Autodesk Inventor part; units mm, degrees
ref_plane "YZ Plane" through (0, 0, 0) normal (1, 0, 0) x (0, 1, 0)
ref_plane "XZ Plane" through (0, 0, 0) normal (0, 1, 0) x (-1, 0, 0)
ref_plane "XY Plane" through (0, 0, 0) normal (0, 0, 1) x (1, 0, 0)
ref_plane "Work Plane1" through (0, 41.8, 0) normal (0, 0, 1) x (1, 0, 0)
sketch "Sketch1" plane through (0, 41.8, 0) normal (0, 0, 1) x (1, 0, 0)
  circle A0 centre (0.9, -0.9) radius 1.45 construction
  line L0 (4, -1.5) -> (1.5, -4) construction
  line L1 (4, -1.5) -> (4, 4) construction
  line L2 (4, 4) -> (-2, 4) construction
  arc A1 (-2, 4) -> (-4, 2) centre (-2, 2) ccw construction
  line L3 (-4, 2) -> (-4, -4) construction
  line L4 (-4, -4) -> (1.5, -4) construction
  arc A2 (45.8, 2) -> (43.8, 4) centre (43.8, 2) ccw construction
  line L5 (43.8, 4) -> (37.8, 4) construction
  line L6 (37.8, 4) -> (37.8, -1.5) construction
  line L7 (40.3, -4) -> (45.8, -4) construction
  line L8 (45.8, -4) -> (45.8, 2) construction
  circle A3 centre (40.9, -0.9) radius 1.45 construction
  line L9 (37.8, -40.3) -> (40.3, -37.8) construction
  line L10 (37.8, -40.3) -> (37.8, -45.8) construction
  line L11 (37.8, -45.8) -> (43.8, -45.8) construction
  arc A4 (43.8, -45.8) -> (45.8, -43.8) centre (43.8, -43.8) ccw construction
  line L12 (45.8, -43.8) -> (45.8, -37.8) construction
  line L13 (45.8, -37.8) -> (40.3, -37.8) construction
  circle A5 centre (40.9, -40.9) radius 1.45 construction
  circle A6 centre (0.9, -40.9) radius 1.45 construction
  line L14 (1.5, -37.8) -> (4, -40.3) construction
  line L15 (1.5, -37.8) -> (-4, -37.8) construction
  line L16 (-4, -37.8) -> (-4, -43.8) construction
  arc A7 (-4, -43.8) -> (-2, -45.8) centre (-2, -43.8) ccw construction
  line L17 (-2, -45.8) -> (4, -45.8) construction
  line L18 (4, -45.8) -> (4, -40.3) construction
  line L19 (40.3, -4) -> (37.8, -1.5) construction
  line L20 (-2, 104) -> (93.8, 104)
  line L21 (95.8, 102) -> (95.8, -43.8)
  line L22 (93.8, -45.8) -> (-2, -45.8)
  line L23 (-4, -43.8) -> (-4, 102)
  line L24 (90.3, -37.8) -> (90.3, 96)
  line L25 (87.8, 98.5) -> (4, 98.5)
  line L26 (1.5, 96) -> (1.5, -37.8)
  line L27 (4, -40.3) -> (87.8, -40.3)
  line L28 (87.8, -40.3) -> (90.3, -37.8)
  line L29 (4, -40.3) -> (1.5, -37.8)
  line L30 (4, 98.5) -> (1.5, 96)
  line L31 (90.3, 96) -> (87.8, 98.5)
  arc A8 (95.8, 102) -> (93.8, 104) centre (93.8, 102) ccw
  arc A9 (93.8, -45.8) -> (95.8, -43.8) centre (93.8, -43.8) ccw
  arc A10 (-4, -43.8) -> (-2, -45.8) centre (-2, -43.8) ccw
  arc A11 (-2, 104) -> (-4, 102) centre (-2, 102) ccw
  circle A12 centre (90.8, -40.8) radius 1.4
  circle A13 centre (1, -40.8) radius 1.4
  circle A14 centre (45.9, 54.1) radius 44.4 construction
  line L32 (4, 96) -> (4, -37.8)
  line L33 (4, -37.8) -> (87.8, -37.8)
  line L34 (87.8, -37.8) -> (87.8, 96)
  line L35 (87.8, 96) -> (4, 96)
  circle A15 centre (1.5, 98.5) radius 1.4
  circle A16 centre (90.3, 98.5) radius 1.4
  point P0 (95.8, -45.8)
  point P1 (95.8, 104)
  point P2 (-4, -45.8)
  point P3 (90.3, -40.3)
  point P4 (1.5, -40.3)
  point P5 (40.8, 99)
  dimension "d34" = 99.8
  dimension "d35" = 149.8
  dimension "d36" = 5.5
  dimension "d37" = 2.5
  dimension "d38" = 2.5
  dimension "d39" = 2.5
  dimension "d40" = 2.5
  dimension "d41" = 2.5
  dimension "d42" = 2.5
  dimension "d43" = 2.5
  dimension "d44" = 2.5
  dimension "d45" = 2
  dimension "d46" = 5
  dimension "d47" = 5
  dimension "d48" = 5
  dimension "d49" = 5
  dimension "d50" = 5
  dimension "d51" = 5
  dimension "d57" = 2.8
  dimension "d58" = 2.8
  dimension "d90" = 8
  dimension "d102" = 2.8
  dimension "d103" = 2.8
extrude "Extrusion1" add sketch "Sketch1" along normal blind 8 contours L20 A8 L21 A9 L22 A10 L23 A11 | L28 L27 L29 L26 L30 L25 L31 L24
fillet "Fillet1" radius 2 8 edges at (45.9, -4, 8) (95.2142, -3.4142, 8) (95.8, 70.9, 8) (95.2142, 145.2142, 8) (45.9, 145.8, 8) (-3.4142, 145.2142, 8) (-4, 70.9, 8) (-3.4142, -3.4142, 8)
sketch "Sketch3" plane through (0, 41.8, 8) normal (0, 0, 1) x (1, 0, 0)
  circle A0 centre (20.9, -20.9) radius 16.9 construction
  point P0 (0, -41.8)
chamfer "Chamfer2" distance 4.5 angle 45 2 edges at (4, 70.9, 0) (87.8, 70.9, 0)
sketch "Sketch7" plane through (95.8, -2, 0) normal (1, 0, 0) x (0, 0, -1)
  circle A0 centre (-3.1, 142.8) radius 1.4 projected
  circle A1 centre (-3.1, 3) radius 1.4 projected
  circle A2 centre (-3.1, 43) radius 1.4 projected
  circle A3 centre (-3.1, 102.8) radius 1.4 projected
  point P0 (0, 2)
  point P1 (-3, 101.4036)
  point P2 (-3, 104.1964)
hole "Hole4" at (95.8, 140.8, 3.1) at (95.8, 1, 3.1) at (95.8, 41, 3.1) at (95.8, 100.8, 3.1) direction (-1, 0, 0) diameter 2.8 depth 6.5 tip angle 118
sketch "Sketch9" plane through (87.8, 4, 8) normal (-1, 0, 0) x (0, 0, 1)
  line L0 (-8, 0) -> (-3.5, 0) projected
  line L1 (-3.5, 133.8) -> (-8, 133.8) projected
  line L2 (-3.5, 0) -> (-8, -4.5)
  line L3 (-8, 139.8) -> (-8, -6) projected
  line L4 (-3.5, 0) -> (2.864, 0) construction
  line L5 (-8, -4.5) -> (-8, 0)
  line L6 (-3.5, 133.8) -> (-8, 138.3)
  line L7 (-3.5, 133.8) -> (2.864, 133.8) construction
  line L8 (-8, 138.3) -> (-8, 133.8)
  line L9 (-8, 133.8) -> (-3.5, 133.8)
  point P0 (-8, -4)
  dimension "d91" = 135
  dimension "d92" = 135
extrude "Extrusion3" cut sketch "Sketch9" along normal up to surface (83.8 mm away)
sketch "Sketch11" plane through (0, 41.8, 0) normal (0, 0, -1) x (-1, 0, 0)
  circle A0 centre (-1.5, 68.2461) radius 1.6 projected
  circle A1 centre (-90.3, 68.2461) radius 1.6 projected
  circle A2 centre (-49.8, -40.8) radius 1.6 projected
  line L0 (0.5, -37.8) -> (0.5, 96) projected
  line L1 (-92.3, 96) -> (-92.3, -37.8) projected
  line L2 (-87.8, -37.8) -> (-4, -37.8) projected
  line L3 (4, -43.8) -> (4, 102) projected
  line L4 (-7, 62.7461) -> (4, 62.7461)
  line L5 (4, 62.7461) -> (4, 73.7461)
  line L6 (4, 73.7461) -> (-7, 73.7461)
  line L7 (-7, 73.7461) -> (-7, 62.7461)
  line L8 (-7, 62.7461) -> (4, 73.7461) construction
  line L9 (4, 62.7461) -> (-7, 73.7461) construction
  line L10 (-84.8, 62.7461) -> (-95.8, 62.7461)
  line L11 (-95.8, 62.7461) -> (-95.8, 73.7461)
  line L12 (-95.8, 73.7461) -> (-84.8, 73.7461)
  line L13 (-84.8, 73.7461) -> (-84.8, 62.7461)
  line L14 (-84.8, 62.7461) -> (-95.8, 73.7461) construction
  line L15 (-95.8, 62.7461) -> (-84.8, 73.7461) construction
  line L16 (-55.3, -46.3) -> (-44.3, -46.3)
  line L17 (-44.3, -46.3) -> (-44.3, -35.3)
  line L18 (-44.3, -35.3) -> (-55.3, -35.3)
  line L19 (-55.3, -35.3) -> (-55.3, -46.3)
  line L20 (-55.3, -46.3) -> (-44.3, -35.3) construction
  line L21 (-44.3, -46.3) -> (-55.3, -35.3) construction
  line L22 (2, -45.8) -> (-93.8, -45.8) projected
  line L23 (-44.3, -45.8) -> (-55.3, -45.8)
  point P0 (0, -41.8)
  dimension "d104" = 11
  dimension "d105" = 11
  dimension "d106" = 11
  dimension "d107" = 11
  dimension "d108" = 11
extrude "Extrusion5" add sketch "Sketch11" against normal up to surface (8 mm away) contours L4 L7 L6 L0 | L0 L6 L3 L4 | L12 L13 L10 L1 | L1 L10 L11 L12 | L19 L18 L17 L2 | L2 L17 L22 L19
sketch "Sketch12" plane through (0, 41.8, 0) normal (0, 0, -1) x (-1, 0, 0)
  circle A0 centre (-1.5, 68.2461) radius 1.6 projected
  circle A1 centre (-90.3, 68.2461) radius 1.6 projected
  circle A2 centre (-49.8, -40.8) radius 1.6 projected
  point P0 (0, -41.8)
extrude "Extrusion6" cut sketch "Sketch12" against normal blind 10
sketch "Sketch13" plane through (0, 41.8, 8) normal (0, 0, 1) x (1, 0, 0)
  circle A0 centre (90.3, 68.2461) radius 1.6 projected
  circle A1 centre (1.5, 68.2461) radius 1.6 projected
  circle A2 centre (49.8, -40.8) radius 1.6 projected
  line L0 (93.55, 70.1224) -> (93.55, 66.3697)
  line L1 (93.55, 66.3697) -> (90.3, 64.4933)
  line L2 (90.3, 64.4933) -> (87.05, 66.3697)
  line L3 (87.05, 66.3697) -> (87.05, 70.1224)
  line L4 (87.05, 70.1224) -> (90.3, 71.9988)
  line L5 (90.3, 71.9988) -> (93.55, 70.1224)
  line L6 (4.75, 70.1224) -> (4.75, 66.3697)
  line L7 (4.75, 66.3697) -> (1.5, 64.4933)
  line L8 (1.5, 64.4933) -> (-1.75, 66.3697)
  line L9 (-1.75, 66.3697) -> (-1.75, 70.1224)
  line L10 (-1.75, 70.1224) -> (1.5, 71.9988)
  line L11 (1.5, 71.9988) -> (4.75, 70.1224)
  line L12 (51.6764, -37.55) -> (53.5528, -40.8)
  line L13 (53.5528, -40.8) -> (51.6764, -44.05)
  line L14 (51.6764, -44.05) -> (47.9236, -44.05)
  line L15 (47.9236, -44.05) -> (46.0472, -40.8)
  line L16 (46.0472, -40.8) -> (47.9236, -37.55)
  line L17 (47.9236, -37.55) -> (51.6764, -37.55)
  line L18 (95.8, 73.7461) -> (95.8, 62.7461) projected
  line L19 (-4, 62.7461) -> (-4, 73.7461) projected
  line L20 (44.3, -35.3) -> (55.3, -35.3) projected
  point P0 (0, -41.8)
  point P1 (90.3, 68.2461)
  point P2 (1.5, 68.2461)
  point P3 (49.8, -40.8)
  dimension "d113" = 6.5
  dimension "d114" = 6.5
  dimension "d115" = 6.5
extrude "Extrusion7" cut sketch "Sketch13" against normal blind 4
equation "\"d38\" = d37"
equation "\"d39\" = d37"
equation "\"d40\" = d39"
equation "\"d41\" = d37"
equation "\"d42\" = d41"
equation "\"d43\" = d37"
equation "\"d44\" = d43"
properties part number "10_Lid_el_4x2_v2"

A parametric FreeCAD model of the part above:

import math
import FreeCAD as App
import Part
import Sketcher
from FreeCAD import Vector
Q = App.Units.Quantity


def edges_at(feature, points):
    """Names of the edges that pass closest to the given points."""
    edges = feature.Shape.Edges
    near = lambda p: min(range(len(edges)), key=lambda i: edges[i].distToShape(Part.Vertex(*p))[0])
    return sorted({f"Edge{near(p) + 1}" for p in points})

doc = App.newDocument("Part")
params = doc.addObject("Spreadsheet::Sheet", "Params")
for row, (alias, value) in enumerate([
    ("sketch1_radius", "2 mm"),
    ("sketch1_diameter", "2.8 mm"),
    ("sketch1_width", "95.8 mm"),
    ("sketch1_height", "145.8 mm"),
    ("pad1_length", "8 mm"),
    ("fillet_radius", "2 mm"),
    ("chamfer_size", "4.5 mm"),
    ("sketch2_diameter", "2.8 mm"),
    ("hole_diameter", "2.8 mm"),
    ("hole_depth", "6.5 mm"),
    ("sketch3_width", "4.5 mm"),
    ("pocket1_length", "83.8 mm"),
    ("sketch4_width", "11 mm"),
    ("sketch4_diameter", "3.2 mm"),
    ("sketch4_height", "10.5 mm"),
    ("pad2_length", "8 mm"),
    ("sketch5_diameter", "3.2 mm"),
    ("pocket2_length", "10 mm"),
    ("sketch6_diameter", "3.2 mm"),
    ("pocket3_length", "4 mm"),
], start=1):
    params.set(f"A{row}", alias)
    params.set(f"B{row}", "=" + value)
    params.setAlias(f"B{row}", alias)

body = doc.addObject("PartDesign::Body", "Body")

# Sketch on XY plane
sketch1 = body.newObject("Sketcher::SketchObject", "Sketch")
sketch1.AttachmentSupport = (doc.getObject("XY_Plane"), [""])
sketch1.MapMode = "FlatFace"
sketch1.addGeometry([
    Part.LineSegment(Vector(93.8, 145.8, 0), Vector(-2, 145.8, 0)),  # 0
    Part.ArcOfCircle(Part.Circle(Vector(-2, 143.8, 0), Vector(0, 0, 1), 2), math.radians(90), math.radians(180)),  # 1
    Part.LineSegment(Vector(-4, 143.8, 0), Vector(-4, -2, 0)),  # 2
    Part.ArcOfCircle(Part.Circle(Vector(-2, -2, 0), Vector(0, 0, 1), 2), math.radians(180), math.radians(270)),  # 3
    Part.LineSegment(Vector(-2, -4, 0), Vector(93.8, -4, 0)),  # 4
    Part.ArcOfCircle(Part.Circle(Vector(93.8, -2, 0), Vector(0, 0, 1), 2), math.radians(-90), math.radians(0)),  # 5
    Part.LineSegment(Vector(95.8, -2, 0), Vector(95.8, 143.8, 0)),  # 6
    Part.ArcOfCircle(Part.Circle(Vector(93.8, 143.8, 0), Vector(0, 0, 1), 2), math.radians(0), math.radians(90)),  # 7
    Part.Circle(Vector(1, 1, 0), Vector(0, 0, 1), 1.4),  # 8
    Part.Circle(Vector(90.8, 1, 0), Vector(0, 0, 1), 1.4),  # 9
    Part.Circle(Vector(1.5, 140.3, 0), Vector(0, 0, 1), 1.4),  # 10
    Part.Circle(Vector(90.3, 140.3, 0), Vector(0, 0, 1), 1.4),  # 11
    Part.LineSegment(Vector(4, 4, 0), Vector(4, 137.8, 0)),  # 12
    Part.LineSegment(Vector(4, 137.8, 0), Vector(87.8, 137.8, 0)),  # 13
    Part.LineSegment(Vector(87.8, 137.8, 0), Vector(87.8, 4, 0)),  # 14
    Part.LineSegment(Vector(87.8, 4, 0), Vector(4, 4, 0)),  # 15
], False)
sketch1.addConstraint([
    Sketcher.Constraint("Tangent", 0, 2, 1, 1),
    Sketcher.Constraint("Tangent", 1, 2, 2, 1),
    Sketcher.Constraint("Tangent", 2, 2, 3, 1),
    Sketcher.Constraint("Tangent", 3, 2, 4, 1),
    Sketcher.Constraint("Tangent", 4, 2, 5, 1),
    Sketcher.Constraint("Tangent", 5, 2, 6, 1),
    Sketcher.Constraint("Tangent", 6, 2, 7, 1),
    Sketcher.Constraint("Tangent", 7, 2, 0, 1),
    Sketcher.Constraint("Coincident", 12, 2, 13, 1),
    Sketcher.Constraint("Coincident", 13, 2, 14, 1),
    Sketcher.Constraint("Coincident", 14, 2, 15, 1),
    Sketcher.Constraint("Coincident", 15, 2, 12, 1),
    Sketcher.Constraint("Horizontal", 0),
    Sketcher.Constraint("Vertical", 2),
    Sketcher.Constraint("Horizontal", 4),
    Sketcher.Constraint("Vertical", 6),
    Sketcher.Constraint("Vertical", 12),
    Sketcher.Constraint("Horizontal", 13),
    Sketcher.Constraint("Vertical", 14),
    Sketcher.Constraint("Horizontal", 15),
    Sketcher.Constraint("Equal", 1, 3),
    Sketcher.Constraint("Equal", 3, 5),
    Sketcher.Constraint("Equal", 5, 7),
    Sketcher.Constraint("Equal", 8, 9),
    Sketcher.Constraint("Equal", 9, 10),
    Sketcher.Constraint("Equal", 10, 11),
    Sketcher.Constraint("Horizontal", 8, 3, 9, 3),
    Sketcher.Constraint("Horizontal", 10, 3, 11, 3),
    Sketcher.Constraint("Radius", 1, 2.0),
    Sketcher.Constraint("Diameter", 8, 2.8),
    Sketcher.Constraint("DistanceX", 1, 3, -1, 1, 2.0),
    Sketcher.Constraint("DistanceY", 3, 3, -1, 1, 2.0),
    Sketcher.Constraint("DistanceX", 2, 2, 8, 3, 5.0),
    Sketcher.Constraint("DistanceY", 3, 2, 8, 3, 5.0),
    Sketcher.Constraint("DistanceX", 9, 3, 5, 2, 5.0),
    Sketcher.Constraint("DistanceY", 12, 2, 0, 2, 8.0),
    Sketcher.Constraint("DistanceX", 1, 2, 12, 2, 8.0),
    Sketcher.Constraint("DistanceX", 13, 2, 6, 2, 8.0),
    Sketcher.Constraint("DistanceY", 4, 2, 14, 2, 8.0),
    Sketcher.Constraint("DistanceY", 10, 3, 0, 2, 5.5),
    Sketcher.Constraint("DistanceX", 1, 2, 10, 3, 5.5),
    Sketcher.Constraint("DistanceX", 11, 3, 6, 2, 5.5),
    Sketcher.Constraint("DistanceX", 0, 2, 0, 1, 95.8),
    Sketcher.Constraint("DistanceY", 2, 2, 2, 1, 145.8),
])
sketch1.setExpression("Constraints[28]", "Params.sketch1_radius")
sketch1.setExpression("Constraints[29]", "Params.sketch1_diameter")
sketch1.setExpression("Constraints[42]", "Params.sketch1_width")
sketch1.setExpression("Constraints[43]", "Params.sketch1_height")
pad1 = body.newObject("PartDesign::Pad", "Pad")
pad1.Profile = sketch1
pad1.setExpression("Length", "Params.pad1_length")
doc.recompute()

fillet = body.newObject("PartDesign::Fillet", "Fillet")
fillet.Base = (pad1, edges_at(pad1, [
    (45.9, -4, 8),
    (95.214, -3.414, 8),
    (95.8, 70.9, 8),
    (95.214, 145.214, 8),
    (45.9, 145.8, 8),
    (-3.414, 145.214, 8),
    (-4, 70.9, 8),
    (-3.414, -3.414, 8),
]))
fillet.setExpression("Radius", "Params.fillet_radius")
doc.recompute()

chamfer = body.newObject("PartDesign::Chamfer", "Chamfer")
chamfer.Base = (fillet, edges_at(fillet, [(4, 70.9, 0), (87.8, 70.9, 0)]))
chamfer.setExpression("Size", "Params.chamfer_size")

# Sketch on YZ plane
sketch2 = body.newObject("Sketcher::SketchObject", "Sketch001")
sketch2.AttachmentSupport = (doc.getObject("YZ_Plane"), [""])
sketch2.MapMode = "FlatFace"
sketch2.AttachmentOffset = App.Placement(Vector(0, 0, 95.8), App.Rotation())
sketch2.addGeometry([
    Part.Circle(Vector(140.8, 3.1, 0), Vector(0, 0, 1), 1.4),
    Part.Circle(Vector(1, 3.1, 0), Vector(0, 0, 1), 1.4),
    Part.Circle(Vector(41, 3.1, 0), Vector(0, 0, 1), 1.4),
    Part.Circle(Vector(100.8, 3.1, 0), Vector(0, 0, 1), 1.4),
], False)
sketch2.addConstraint([
    Sketcher.Constraint("Equal", 0, 1),
    Sketcher.Constraint("Equal", 1, 2),
    Sketcher.Constraint("Equal", 2, 3),
    Sketcher.Constraint("Horizontal", 0, 3, 1, 3),
    Sketcher.Constraint("Horizontal", 1, 3, 2, 3),
    Sketcher.Constraint("Horizontal", 2, 3, 3, 3),
    Sketcher.Constraint("Diameter", 0, 2.8),
    Sketcher.Constraint("DistanceX", -1, 1, 1, 3, 1.0),
    Sketcher.Constraint("DistanceX", -1, 1, 2, 3, 41.0),
    Sketcher.Constraint("DistanceX", 3, 3, 0, 3, 40.0),
    Sketcher.Constraint("DistanceX", -1, 1, 0, 3, 140.8),
    Sketcher.Constraint("DistanceY", -1, 1, 0, 3, 3.1),
])
sketch2.setExpression("Constraints[6]", "Params.sketch2_diameter")
doc.recompute()
hole = body.newObject("PartDesign::Hole", "Hole")
hole.Profile = sketch2
hole.ThreadType = "None"
hole.setExpression("Diameter", "Params.hole_diameter")
hole.DepthType = "Dimension"
hole.setExpression("Depth", "Params.hole_depth")
hole.DrillPoint = "Angled"
hole.DrillPointAngle = 118

# Sketch on YZ plane
sketch3 = body.newObject("Sketcher::SketchObject", "Sketch002")
sketch3.AttachmentSupport = (doc.getObject("YZ_Plane"), [""])
sketch3.MapMode = "FlatFace"
sketch3.AttachmentOffset = App.Placement(Vector(0, 0, 87.8), App.Rotation())
sketch3.addGeometry([
    Part.LineSegment(Vector(142.3, 0, 0), Vector(137.8, 0, 0)),  # 0
    Part.LineSegment(Vector(137.8, 0, 0), Vector(137.8, 4.5, 0)),  # 1
    Part.LineSegment(Vector(137.8, 4.5, 0), Vector(142.3, 0, 0)),  # 2
    Part.LineSegment(Vector(4, 4.5, 0), Vector(4, 0, 0)),  # 3
    Part.LineSegment(Vector(4, 0, 0), Vector(-0.5, 0, 0)),  # 4
    Part.LineSegment(Vector(-0.5, 0, 0), Vector(4, 4.5, 0)),  # 5
], False)
sketch3.addConstraint([
    Sketcher.Constraint("Coincident", 0, 2, 1, 1),
    Sketcher.Constraint("Coincident", 1, 2, 2, 1),
    Sketcher.Constraint("Coincident", 2, 2, 0, 1),
    Sketcher.Constraint("Coincident", 3, 2, 4, 1),
    Sketcher.Constraint("Coincident", 4, 2, 5, 1),
    Sketcher.Constraint("Coincident", 5, 2, 3, 1),
    Sketcher.Constraint("Horizontal", 0),
    Sketcher.Constraint("Vertical", 1),
    Sketcher.Constraint("Vertical", 3),
    Sketcher.Constraint("Horizontal", 4),
    Sketcher.Constraint("PointOnObject", 0, 2, -1),
    Sketcher.Constraint("PointOnObject", 3, 2, -1),
    Sketcher.Constraint("Perpendicular", 2, 5),
    Sketcher.Constraint("Horizontal", 1, 2, 5, 2),
    Sketcher.Constraint("Equal", 0, 4),
    Sketcher.Constraint("DistanceX", 0, 2, 0, 1, 4.5),
    Sketcher.Constraint("DistanceX", -1, 1, 3, 2, 4.0),
    Sketcher.Constraint("DistanceX", -1, 1, 0, 2, 137.8),
])
sketch3.setExpression("Constraints[15]", "Params.sketch3_width")
pocket1 = body.newObject("PartDesign::Pocket", "Pocket")
pocket1.Profile = sketch3
pocket1.setExpression("Length", "Params.pocket1_length")

# Sketch on XY plane
sketch4 = body.newObject("Sketcher::SketchObject", "Sketch003")
sketch4.AttachmentSupport = (doc.getObject("XY_Plane"), [""])
sketch4.MapMode = "FlatFace"
sketch4.addGeometry([
    Part.LineSegment(Vector(7, 104.5, 0), Vector(-4, 104.5, 0)),  # 0
    Part.LineSegment(Vector(-4, 104.5, 0), Vector(-4, 115.5, 0)),  # 1
    Part.LineSegment(Vector(-4, 115.5, 0), Vector(7, 115.5, 0)),  # 2
    Part.LineSegment(Vector(7, 115.5, 0), Vector(7, 104.5, 0)),  # 3
    Part.Circle(Vector(1.5, 110, 0), Vector(0, 0, 1), 1.6),  # 4
    Part.LineSegment(Vector(84.8, 115.5, 0), Vector(95.8, 115.5, 0)),  # 5
    Part.LineSegment(Vector(95.8, 115.5, 0), Vector(95.8, 104.5, 0)),  # 6
    Part.LineSegment(Vector(95.8, 104.5, 0), Vector(84.8, 104.5, 0)),  # 7
    Part.LineSegment(Vector(84.8, 104.5, 0), Vector(84.8, 115.5, 0)),  # 8
    Part.Circle(Vector(90.3, 110, 0), Vector(0, 0, 1), 1.6),  # 9
    Part.LineSegment(Vector(55.3, 6.5, 0), Vector(55.3, -4, 0)),  # 10
    Part.LineSegment(Vector(55.3, -4, 0), Vector(44.3, -4, 0)),  # 11
    Part.LineSegment(Vector(44.3, -4, 0), Vector(44.3, 6.5, 0)),  # 12
    Part.LineSegment(Vector(44.3, 6.5, 0), Vector(55.3, 6.5, 0)),  # 13
    Part.Circle(Vector(49.8, 1, 0), Vector(0, 0, 1), 1.6),  # 14
], False)
sketch4.addConstraint([
    Sketcher.Constraint("Coincident", 0, 2, 1, 1),
    Sketcher.Constraint("Coincident", 1, 2, 2, 1),
    Sketcher.Constraint("Coincident", 2, 2, 3, 1),
    Sketcher.Constraint("Coincident", 3, 2, 0, 1),
    Sketcher.Constraint("Coincident", 5, 2, 6, 1),
    Sketcher.Constraint("Coincident", 6, 2, 7, 1),
    Sketcher.Constraint("Coincident", 7, 2, 8, 1),
    Sketcher.Constraint("Coincident", 8, 2, 5, 1),
    Sketcher.Constraint("Coincident", 10, 2, 11, 1),
    Sketcher.Constraint("Coincident", 11, 2, 12, 1),
    Sketcher.Constraint("Coincident", 12, 2, 13, 1),
    Sketcher.Constraint("Coincident", 13, 2, 10, 1),
    Sketcher.Constraint("Horizontal", 0),
    Sketcher.Constraint("Vertical", 1),
    Sketcher.Constraint("Horizontal", 2),
    Sketcher.Constraint("Vertical", 3),
    Sketcher.Constraint("Horizontal", 5),
    Sketcher.Constraint("Vertical", 6),
    Sketcher.Constraint("Horizontal", 7),
    Sketcher.Constraint("Vertical", 8),
    Sketcher.Constraint("Vertical", 10),
    Sketcher.Constraint("Horizontal", 11),
    Sketcher.Constraint("Vertical", 12),
    Sketcher.Constraint("Horizontal", 13),
    Sketcher.Constraint("Equal", 4, 9),
    Sketcher.Constraint("Equal", 9, 14),
    Sketcher.Constraint("Horizontal", 4, 3, 9, 3),
    Sketcher.Constraint("Horizontal", 2, 2, 5, 2),
    Sketcher.Constraint("Horizontal", 3, 2, 6, 2),
    Sketcher.Constraint("Equal", 2, 5),
    Sketcher.Constraint("Equal", 7, 11),
    Sketcher.Constraint("Equal", 13, 1),
    Sketcher.Constraint("DistanceX", 0, 2, 0, 1, 11.0),
    Sketcher.Constraint("Diameter", 4, 3.2),
    Sketcher.Constraint("DistanceY", 10, 2, 10, 1, 10.5),
    Sketcher.Constraint("DistanceY", -1, 1, 14, 3, 1.0),
    Sketcher.Constraint("DistanceX", 0, 2, -1, 1, 4.0),
    Sketcher.Constraint("DistanceY", 10, 2, -1, 1, 4.0),
    Sketcher.Constraint("DistanceX", 10, 2, 9, 3, 35.0),
    Sketcher.Constraint("DistanceX", -1, 1, 4, 3, 1.5),
    Sketcher.Constraint("DistanceX", -1, 1, 9, 3, 90.3),
    Sketcher.Constraint("DistanceX", -1, 1, 14, 3, 49.8),
    Sketcher.Constraint("DistanceX", -1, 1, 5, 2, 95.8),
    Sketcher.Constraint("DistanceY", 0, 2, 4, 3, 5.5),
    Sketcher.Constraint("DistanceY", -1, 1, 4, 3, 110.046),
])
sketch4.setExpression("Constraints[32]", "Params.sketch4_width")
sketch4.setExpression("Constraints[33]", "Params.sketch4_diameter")
sketch4.setExpression("Constraints[34]", "Params.sketch4_height")
pad2 = body.newObject("PartDesign::Pad", "Pad001")
pad2.Profile = sketch4
pad2.setExpression("Length", "Params.pad2_length")

# Sketch on XY plane
sketch5 = body.newObject("Sketcher::SketchObject", "Sketch004")
sketch5.AttachmentSupport = (doc.getObject("XY_Plane"), [""])
sketch5.MapMode = "FlatFace"
sketch5.addGeometry([
    Part.Circle(Vector(1.5, 110, 0), Vector(0, 0, 1), 1.6),
    Part.Circle(Vector(90.3, 110, 0), Vector(0, 0, 1), 1.6),
    Part.Circle(Vector(49.8, 1, 0), Vector(0, 0, 1), 1.6),
], False)
sketch5.addConstraint([
    Sketcher.Constraint("Equal", 0, 1),
    Sketcher.Constraint("Equal", 1, 2),
    Sketcher.Constraint("Horizontal", 0, 3, 1, 3),
    Sketcher.Constraint("Diameter", 0, 3.2),
    Sketcher.Constraint("DistanceY", -1, 1, 2, 3, 1.0),
    Sketcher.Constraint("DistanceX", -1, 1, 0, 3, 1.5),
    Sketcher.Constraint("DistanceX", -1, 1, 1, 3, 90.3),
    Sketcher.Constraint("DistanceX", -1, 1, 2, 3, 49.8),
    Sketcher.Constraint("DistanceY", -1, 1, 0, 3, 110.046),
])
sketch5.setExpression("Constraints[3]", "Params.sketch5_diameter")
pocket2 = body.newObject("PartDesign::Pocket", "Pocket001")
pocket2.Profile = sketch5
pocket2.setExpression("Length", "Params.pocket2_length")
pocket2.Reversed = True

# Sketch on XY plane
sketch6 = body.newObject("Sketcher::SketchObject", "Sketch005")
sketch6.AttachmentSupport = (doc.getObject("XY_Plane"), [""])
sketch6.MapMode = "FlatFace"
sketch6.AttachmentOffset = App.Placement(Vector(0, 0, 8), App.Rotation())
sketch6.addGeometry([
    Part.LineSegment(Vector(93.5, 108.2, 0), Vector(93.5, 111.9, 0)),  # 0
    Part.LineSegment(Vector(93.5, 111.9, 0), Vector(90.3, 113.8, 0)),  # 1
    Part.LineSegment(Vector(90.3, 113.8, 0), Vector(87, 111.9, 0)),  # 2
    Part.LineSegment(Vector(87, 111.9, 0), Vector(87, 108.2, 0)),  # 3
    Part.LineSegment(Vector(87, 108.2, 0), Vector(90.3, 106.3, 0)),  # 4
    Part.LineSegment(Vector(90.3, 106.3, 0), Vector(93.5, 108.2, 0)),  # 5
    Part.Circle(Vector(90.3, 110, 0), Vector(0, 0, 1), 1.6),  # 6
    Part.LineSegment(Vector(4.8, 108.2, 0), Vector(4.8, 111.9, 0)),  # 7
    Part.LineSegment(Vector(4.8, 111.9, 0), Vector(1.5, 113.8, 0)),  # 8
    Part.LineSegment(Vector(1.5, 113.8, 0), Vector(-1.8, 111.9, 0)),  # 9
    Part.LineSegment(Vector(-1.8, 111.9, 0), Vector(-1.8, 108.2, 0)),  # 10
    Part.LineSegment(Vector(-1.8, 108.2, 0), Vector(1.5, 106.3, 0)),  # 11
    Part.LineSegment(Vector(1.5, 106.3, 0), Vector(4.8, 108.2, 0)),  # 12
    Part.Circle(Vector(1.5, 110, 0), Vector(0, 0, 1), 1.6),  # 13
    Part.LineSegment(Vector(53.6, 1, 0), Vector(51.7, 4.2, 0)),  # 14
    Part.LineSegment(Vector(51.7, 4.2, 0), Vector(47.9, 4.2, 0)),  # 15
    Part.LineSegment(Vector(47.9, 4.2, 0), Vector(46, 1, 0)),  # 16
    Part.LineSegment(Vector(46, 1, 0), Vector(47.9, -2.2, 0)),  # 17
    Part.LineSegment(Vector(47.9, -2.2, 0), Vector(51.7, -2.2, 0)),  # 18
    Part.LineSegment(Vector(51.7, -2.2, 0), Vector(53.6, 1, 0)),  # 19
    Part.Circle(Vector(49.8, 1, 0), Vector(0, 0, 1), 1.6),  # 20
], False)
sketch6.addConstraint([
    Sketcher.Constraint("Coincident", 0, 2, 1, 1),
    Sketcher.Constraint("Coincident", 1, 2, 2, 1),
    Sketcher.Constraint("Coincident", 2, 2, 3, 1),
    Sketcher.Constraint("Coincident", 3, 2, 4, 1),
    Sketcher.Constraint("Coincident", 4, 2, 5, 1),
    Sketcher.Constraint("Coincident", 5, 2, 0, 1),
    Sketcher.Constraint("Coincident", 7, 2, 8, 1),
    Sketcher.Constraint("Coincident", 8, 2, 9, 1),
    Sketcher.Constraint("Coincident", 9, 2, 10, 1),
    Sketcher.Constraint("Coincident", 10, 2, 11, 1),
    Sketcher.Constraint("Coincident", 11, 2, 12, 1),
    Sketcher.Constraint("Coincident", 12, 2, 7, 1),
    Sketcher.Constraint("Coincident", 14, 2, 15, 1),
    Sketcher.Constraint("Coincident", 15, 2, 16, 1),
    Sketcher.Constraint("Coincident", 16, 2, 17, 1),
    Sketcher.Constraint("Coincident", 17, 2, 18, 1),
    Sketcher.Constraint("Coincident", 18, 2, 19, 1),
    Sketcher.Constraint("Coincident", 19, 2, 14, 1),
    Sketcher.Constraint("Vertical", 0),
    Sketcher.Constraint("Vertical", 3),
    Sketcher.Constraint("Vertical", 7),
    Sketcher.Constraint("Vertical", 10),
    Sketcher.Constraint("Horizontal", 15),
    Sketcher.Constraint("Horizontal", 18),
    Sketcher.Constraint("Equal", 6, 13),
    Sketcher.Constraint("Equal", 13, 20),
    Sketcher.Constraint("Parallel", 1, 4),
    Sketcher.Constraint("Parallel", 2, 5),
    Sketcher.Constraint("Parallel", 4, 8),
    Sketcher.Constraint("Parallel", 5, 9),
    Sketcher.Constraint("Parallel", 8, 11),
    Sketcher.Constraint("Parallel", 9, 12),
    Sketcher.Constraint("Perpendicular", 12, 14),
    Sketcher.Constraint("Perpendicular", 11, 16),
    Sketcher.Constraint("Parallel", 14, 17),
    Sketcher.Constraint("Parallel", 16, 19),
    Sketcher.Constraint("Horizontal", 6, 3, 13, 3),
    Sketcher.Constraint("Horizontal", 0, 2, 2, 2),
    Sketcher.Constraint("Horizontal", 3, 2, 5, 2),
    Sketcher.Constraint("Horizontal", 2, 2, 7, 2),
    Sketcher.Constraint("Horizontal", 1, 2, 8, 2),
    Sketcher.Constraint("Horizontal", 7, 2, 9, 2),
    Sketcher.Constraint("Horizontal", 5, 2, 10, 2),
    Sketcher.Constraint("Horizontal", 4, 2, 11, 2),
    Sketcher.Constraint("Horizontal", 20, 3, 16, 2),
    Sketcher.Constraint("Horizontal", 16, 2, 19, 2),
    Sketcher.Constraint("Vertical", 6, 3, 1, 2),
    Sketcher.Constraint("Vertical", 1, 2, 4, 2),
    Sketcher.Constraint("Vertical", 13, 3, 8, 2),
    Sketcher.Constraint("Vertical", 15, 2, 17, 2),
    Sketcher.Constraint("Equal", 18, 0),
    Sketcher.Constraint("Equal", 12, 14),
    Sketcher.Constraint("Diameter", 6, 3.2),
    Sketcher.Constraint("DistanceX", 2, 2, 0, 2, 6.5),
    Sketcher.Constraint("Angle", 1, Q("149.9998 deg")),
    Sketcher.Constraint("DistanceY", -1, 1, 20, 3, 1.0),
    Sketcher.Constraint("DistanceX", -1, 1, 6, 3, 90.3),
    Sketcher.Constraint("DistanceX", -1, 1, 13, 3, 1.5),
    Sketcher.Constraint("DistanceX", -1, 1, 20, 3, 49.8),
    Sketcher.Constraint("DistanceX", 15, 2, 15, 1, 3.7528),
    Sketcher.Constraint("DistanceY", -1, 1, 6, 3, 110.046),
    Sketcher.Constraint("DistanceY", -1, 1, 0, 2, 111.9224),
    Sketcher.Constraint("DistanceX", -1, 1, 14, 2, 51.6764),
])
sketch6.setExpression("Constraints[52]", "Params.sketch6_diameter")
pocket3 = body.newObject("PartDesign::Pocket", "Pocket002")
pocket3.Profile = sketch6
pocket3.setExpression("Length", "Params.pocket3_length")

doc.recompute()
